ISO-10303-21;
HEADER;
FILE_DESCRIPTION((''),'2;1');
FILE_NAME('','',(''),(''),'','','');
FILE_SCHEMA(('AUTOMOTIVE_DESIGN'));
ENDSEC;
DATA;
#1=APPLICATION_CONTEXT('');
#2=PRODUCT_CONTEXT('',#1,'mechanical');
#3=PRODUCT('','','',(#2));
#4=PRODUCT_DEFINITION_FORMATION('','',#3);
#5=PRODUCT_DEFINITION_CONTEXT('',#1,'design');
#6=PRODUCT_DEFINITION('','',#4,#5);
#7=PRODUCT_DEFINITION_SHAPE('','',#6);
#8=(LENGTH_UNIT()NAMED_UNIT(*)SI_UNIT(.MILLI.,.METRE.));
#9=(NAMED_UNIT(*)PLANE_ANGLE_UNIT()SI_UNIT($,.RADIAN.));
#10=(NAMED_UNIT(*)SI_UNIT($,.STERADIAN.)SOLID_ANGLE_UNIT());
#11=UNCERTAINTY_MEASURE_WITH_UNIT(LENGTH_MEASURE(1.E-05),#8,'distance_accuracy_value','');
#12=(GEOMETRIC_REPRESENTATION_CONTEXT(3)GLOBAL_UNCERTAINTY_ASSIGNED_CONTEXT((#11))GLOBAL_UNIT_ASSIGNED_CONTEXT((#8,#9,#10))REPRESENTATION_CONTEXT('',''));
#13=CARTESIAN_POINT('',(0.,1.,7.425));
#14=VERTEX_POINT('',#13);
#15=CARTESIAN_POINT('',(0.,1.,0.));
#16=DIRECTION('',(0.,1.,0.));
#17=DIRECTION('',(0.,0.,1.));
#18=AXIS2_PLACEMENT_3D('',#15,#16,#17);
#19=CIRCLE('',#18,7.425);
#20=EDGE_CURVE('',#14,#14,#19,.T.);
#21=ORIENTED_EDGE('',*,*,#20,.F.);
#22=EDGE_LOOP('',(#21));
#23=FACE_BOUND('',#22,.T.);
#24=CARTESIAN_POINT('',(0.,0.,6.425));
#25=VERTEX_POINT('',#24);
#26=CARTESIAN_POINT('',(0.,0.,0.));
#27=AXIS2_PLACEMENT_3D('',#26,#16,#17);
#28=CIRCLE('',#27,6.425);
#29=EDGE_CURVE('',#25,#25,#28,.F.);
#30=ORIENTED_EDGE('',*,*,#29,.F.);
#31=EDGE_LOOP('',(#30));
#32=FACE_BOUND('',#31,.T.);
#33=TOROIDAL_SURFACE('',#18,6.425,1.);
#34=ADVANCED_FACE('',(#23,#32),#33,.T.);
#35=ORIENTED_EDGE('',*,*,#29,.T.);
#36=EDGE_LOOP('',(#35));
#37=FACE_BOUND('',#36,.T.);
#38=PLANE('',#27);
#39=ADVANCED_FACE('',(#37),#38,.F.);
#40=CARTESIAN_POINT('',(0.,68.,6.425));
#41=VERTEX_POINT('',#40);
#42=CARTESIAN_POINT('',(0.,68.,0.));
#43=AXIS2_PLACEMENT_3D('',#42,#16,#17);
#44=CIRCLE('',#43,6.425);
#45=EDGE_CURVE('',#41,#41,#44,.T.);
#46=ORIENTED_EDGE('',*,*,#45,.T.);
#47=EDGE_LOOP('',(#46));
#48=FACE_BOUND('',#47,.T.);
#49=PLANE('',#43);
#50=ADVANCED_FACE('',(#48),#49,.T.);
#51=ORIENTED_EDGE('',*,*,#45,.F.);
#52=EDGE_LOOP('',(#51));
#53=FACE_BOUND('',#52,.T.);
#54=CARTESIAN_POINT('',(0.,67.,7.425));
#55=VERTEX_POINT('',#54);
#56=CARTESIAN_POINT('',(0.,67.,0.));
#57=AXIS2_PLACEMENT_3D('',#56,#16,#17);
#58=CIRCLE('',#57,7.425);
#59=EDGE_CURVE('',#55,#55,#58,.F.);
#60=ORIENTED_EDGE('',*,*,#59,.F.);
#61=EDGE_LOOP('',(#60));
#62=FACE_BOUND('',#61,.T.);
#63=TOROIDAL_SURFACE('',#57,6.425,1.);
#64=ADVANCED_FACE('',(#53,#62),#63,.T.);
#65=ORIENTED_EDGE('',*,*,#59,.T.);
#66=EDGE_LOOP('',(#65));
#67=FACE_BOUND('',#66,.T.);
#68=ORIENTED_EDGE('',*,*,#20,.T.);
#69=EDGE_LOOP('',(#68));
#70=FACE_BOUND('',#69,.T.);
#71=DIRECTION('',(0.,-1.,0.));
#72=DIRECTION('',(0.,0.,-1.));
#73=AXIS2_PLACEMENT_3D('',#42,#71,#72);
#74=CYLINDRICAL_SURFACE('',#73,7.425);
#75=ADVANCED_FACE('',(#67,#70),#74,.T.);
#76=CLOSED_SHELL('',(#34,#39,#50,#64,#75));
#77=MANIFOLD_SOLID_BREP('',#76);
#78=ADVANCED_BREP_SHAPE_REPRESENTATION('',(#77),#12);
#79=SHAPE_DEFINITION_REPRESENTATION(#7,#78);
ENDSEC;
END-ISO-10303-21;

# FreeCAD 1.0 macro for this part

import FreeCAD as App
import Part
import Sketcher
from FreeCAD import Vector
Q = App.Units.Quantity


def edges_at(feature, points):
    """Names of the edges that pass closest to the given points."""
    edges = feature.Shape.Edges
    near = lambda p: min(range(len(edges)), key=lambda i: edges[i].distToShape(Part.Vertex(*p))[0])
    return sorted({f"Edge{near(p) + 1}" for p in points})

doc = App.newDocument("Part")
body = doc.addObject("PartDesign::Body", "Body")

sketch1 = body.newObject("Sketcher::SketchObject", "Sketch")
sketch1.AttachmentSupport = (doc.getObject("XZ_Plane"), [""])
sketch1.MapMode = "FlatFace"
sketch1.addGeometry(Part.Circle(Vector(0, 0, 0), Vector(0, 0, 1), 7), False)
sketch1.addConstraint([
    Sketcher.Constraint("Coincident", 0, 3, -1, 1),
    Sketcher.Constraint("Diameter", 0, Q("14.85 mm")),
])
pad1 = body.newObject("PartDesign::Pad", "Pad")
pad1.Profile = sketch1
pad1.Length = 68
pad1.Reversed = True
doc.recompute()

fillet = body.newObject("PartDesign::Fillet", "Fillet")
fillet.Base = (pad1, edges_at(pad1, [(0, 0, -7.425), (0, 68, -7.425)]))
fillet.Radius = 1

doc.recompute()
